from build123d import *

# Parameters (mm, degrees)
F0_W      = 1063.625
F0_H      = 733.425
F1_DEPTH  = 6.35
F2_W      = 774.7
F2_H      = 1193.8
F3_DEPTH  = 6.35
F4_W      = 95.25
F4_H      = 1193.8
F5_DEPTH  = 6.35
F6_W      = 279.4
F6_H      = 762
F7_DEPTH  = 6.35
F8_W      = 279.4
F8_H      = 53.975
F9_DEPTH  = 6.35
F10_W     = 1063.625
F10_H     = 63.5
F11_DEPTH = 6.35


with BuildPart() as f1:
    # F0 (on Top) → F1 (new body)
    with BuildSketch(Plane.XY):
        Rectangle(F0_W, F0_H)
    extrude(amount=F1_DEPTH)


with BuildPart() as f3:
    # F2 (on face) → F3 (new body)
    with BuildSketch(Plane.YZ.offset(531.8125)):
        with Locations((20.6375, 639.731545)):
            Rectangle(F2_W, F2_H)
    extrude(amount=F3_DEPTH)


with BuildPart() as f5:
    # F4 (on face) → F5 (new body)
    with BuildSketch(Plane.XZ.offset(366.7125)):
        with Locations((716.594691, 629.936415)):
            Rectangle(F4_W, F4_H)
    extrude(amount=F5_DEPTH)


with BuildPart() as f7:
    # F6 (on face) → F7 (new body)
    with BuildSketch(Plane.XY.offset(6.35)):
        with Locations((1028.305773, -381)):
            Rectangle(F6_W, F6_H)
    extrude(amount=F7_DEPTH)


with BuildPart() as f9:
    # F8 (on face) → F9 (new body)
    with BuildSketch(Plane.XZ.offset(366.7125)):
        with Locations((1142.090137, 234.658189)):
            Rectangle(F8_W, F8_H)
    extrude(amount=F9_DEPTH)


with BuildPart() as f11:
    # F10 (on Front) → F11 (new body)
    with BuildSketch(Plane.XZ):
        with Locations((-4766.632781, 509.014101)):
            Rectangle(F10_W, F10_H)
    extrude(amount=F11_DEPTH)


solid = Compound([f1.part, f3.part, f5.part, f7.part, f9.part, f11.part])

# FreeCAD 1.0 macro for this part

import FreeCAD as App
import Part
import Sketcher
Q = App.Units.Quantity

doc = App.newDocument("Part")
body = doc.addObject("PartDesign::Body", "Body")

# Sketch on XY plane
sketch1 = body.newObject("Sketcher::SketchObject", "Sketch")
sketch1.AttachmentSupport = (doc.getObject("XY_Plane"), [""])
sketch1.MapMode = "FlatFace"
sketch1.addGeometry([
    Part.LineSegment(App.Vector(-532, 367, 0), App.Vector(-532, -367, 0)),
    Part.LineSegment(App.Vector(-532, -367, 0), App.Vector(532, -367, 0)),
    Part.LineSegment(App.Vector(532, -367, 0), App.Vector(532, 367, 0)),
    Part.LineSegment(App.Vector(532, 367, 0), App.Vector(-532, 367, 0)),
], False)
sketch1.addConstraint([
    Sketcher.Constraint("Coincident", 0, 2, 1, 1),
    Sketcher.Constraint("Coincident", 1, 2, 2, 1),
    Sketcher.Constraint("Coincident", 2, 2, 3, 1),
    Sketcher.Constraint("Coincident", 3, 2, 0, 1),
    Sketcher.Constraint("Vertical", 0),
    Sketcher.Constraint("Horizontal", 1),
    Sketcher.Constraint("Vertical", 2),
    Sketcher.Constraint("Horizontal", 3),
    Sketcher.Constraint("Symmetric", 0, 2, 2, 2, -1, 1),
    Sketcher.Constraint("DistanceX", 1, 1, 1, 2, Q("41.875 in")),
    Sketcher.Constraint("DistanceY", 0, 2, 0, 1, Q("28.875 in")),
])
pad1 = body.newObject("PartDesign::Pad", "Pad")
pad1.Profile = sketch1
pad1.Length = Q("0.25 in")
body2 = doc.addObject("PartDesign::Body", "Body001")

# Sketch on YZ plane
sketch2 = body2.newObject("Sketcher::SketchObject", "Sketch001")
sketch2.AttachmentSupport = (doc.getObject("YZ_Plane001"), [""])
sketch2.MapMode = "FlatFace"
sketch2.AttachmentOffset = App.Placement(App.Vector(0, 0, 20.9375 * 25.4), App.Rotation())
sketch2.addGeometry([
    Part.LineSegment(App.Vector(-367, 1237, 0), App.Vector(-367, 43, 0)),
    Part.LineSegment(App.Vector(-367, 43, 0), App.Vector(408, 43, 0)),
    Part.LineSegment(App.Vector(408, 43, 0), App.Vector(408, 1237, 0)),
    Part.LineSegment(App.Vector(408, 1237, 0), App.Vector(-367, 1237, 0)),
], False)
sketch2.addConstraint([
    Sketcher.Constraint("Coincident", 0, 2, 1, 1),
    Sketcher.Constraint("Coincident", 1, 2, 2, 1),
    Sketcher.Constraint("Coincident", 2, 2, 3, 1),
    Sketcher.Constraint("Coincident", 3, 2, 0, 1),
    Sketcher.Constraint("Vertical", 0),
    Sketcher.Constraint("Horizontal", 1),
    Sketcher.Constraint("Vertical", 2),
    Sketcher.Constraint("Horizontal", 3),
    Sketcher.Constraint("DistanceY", 0, 2, 0, 1, Q("47 in")),
    Sketcher.Constraint("DistanceX", 1, 1, 1, 2, Q("30.5 in")),
    Sketcher.Constraint("DistanceX", 0, 2, -1, 1, Q("14.4375 in")),
    Sketcher.Constraint("DistanceY", -1, 1, 0, 2, 42.831545),
])
pad2 = body2.newObject("PartDesign::Pad", "Pad001")
pad2.Profile = sketch2
pad2.Length = Q("0.25 in")
body3 = doc.addObject("PartDesign::Body", "Body002")

# Sketch on XZ plane
sketch3 = body3.newObject("Sketcher::SketchObject", "Sketch002")
sketch3.AttachmentSupport = (doc.getObject("XZ_Plane002"), [""])
sketch3.MapMode = "FlatFace"
sketch3.AttachmentOffset = App.Placement(App.Vector(0, 0, 14.4375 * 25.4), App.Rotation())
sketch3.addGeometry([
    Part.LineSegment(App.Vector(669, 1227, 0), App.Vector(669, 33, 0)),
    Part.LineSegment(App.Vector(669, 33, 0), App.Vector(764, 33, 0)),
    Part.LineSegment(App.Vector(764, 33, 0), App.Vector(764, 1227, 0)),
    Part.LineSegment(App.Vector(764, 1227, 0), App.Vector(669, 1227, 0)),
], False)
sketch3.addConstraint([
    Sketcher.Constraint("Coincident", 0, 2, 1, 1),
    Sketcher.Constraint("Coincident", 1, 2, 2, 1),
    Sketcher.Constraint("Coincident", 2, 2, 3, 1),
    Sketcher.Constraint("Coincident", 3, 2, 0, 1),
    Sketcher.Constraint("Vertical", 0),
    Sketcher.Constraint("Horizontal", 1),
    Sketcher.Constraint("Vertical", 2),
    Sketcher.Constraint("Horizontal", 3),
    Sketcher.Constraint("DistanceY", 0, 2, 0, 1, Q("47 in")),
    Sketcher.Constraint("DistanceX", 1, 1, 1, 2, Q("3.75 in")),
    Sketcher.Constraint("DistanceX", -1, 1, 0, 2, 668.969691),
    Sketcher.Constraint("DistanceY", -1, 1, 0, 2, 33.036415),
])
pad3 = body3.newObject("PartDesign::Pad", "Pad002")
pad3.Profile = sketch3
pad3.Length = Q("0.25 in")
body4 = doc.addObject("PartDesign::Body", "Body003")

# Sketch on XY plane
sketch4 = body4.newObject("Sketcher::SketchObject", "Sketch003")
sketch4.AttachmentSupport = (doc.getObject("XY_Plane003"), [""])
sketch4.MapMode = "FlatFace"
sketch4.AttachmentOffset = App.Placement(App.Vector(0, 0, 0.25 * 25.4), App.Rotation())
sketch4.addGeometry([
    Part.LineSegment(App.Vector(889, 0, 0), App.Vector(889, -762, 0)),
    Part.LineSegment(App.Vector(889, -762, 0), App.Vector(1168, -762, 0)),
    Part.LineSegment(App.Vector(1168, -762, 0), App.Vector(1168, 0, 0)),
    Part.LineSegment(App.Vector(1168, 0, 0), App.Vector(889, 0, 0)),
], False)
sketch4.addConstraint([
    Sketcher.Constraint("Coincident", 0, 2, 1, 1),
    Sketcher.Constraint("Coincident", 1, 2, 2, 1),
    Sketcher.Constraint("Coincident", 2, 2, 3, 1),
    Sketcher.Constraint("Coincident", 3, 2, 0, 1),
    Sketcher.Constraint("Vertical", 0),
    Sketcher.Constraint("Horizontal", 1),
    Sketcher.Constraint("Vertical", 2),
    Sketcher.Constraint("Horizontal", 3),
    Sketcher.Constraint("PointOnObject", 2, 2, -1),
    Sketcher.Constraint("DistanceX", 1, 1, 1, 2, Q("11 in")),
    Sketcher.Constraint("DistanceY", 0, 2, 0, 1, Q("30 in")),
    Sketcher.Constraint("DistanceX", -1, 1, 0, 2, 888.605773),
])
pad4 = body4.newObject("PartDesign::Pad", "Pad003")
pad4.Profile = sketch4
pad4.Length = Q("0.25 in")
body5 = doc.addObject("PartDesign::Body", "Body004")

# Sketch on XZ plane
sketch5 = body5.newObject("Sketcher::SketchObject", "Sketch004")
sketch5.AttachmentSupport = (doc.getObject("XZ_Plane004"), [""])
sketch5.MapMode = "FlatFace"
sketch5.AttachmentOffset = App.Placement(App.Vector(0, 0, 14.4375 * 25.4), App.Rotation())
sketch5.addGeometry([
    Part.LineSegment(App.Vector(1002, 262, 0), App.Vector(1002, 208, 0)),
    Part.LineSegment(App.Vector(1002, 208, 0), App.Vector(1282, 208, 0)),
    Part.LineSegment(App.Vector(1282, 208, 0), App.Vector(1282, 262, 0)),
    Part.LineSegment(App.Vector(1282, 262, 0), App.Vector(1002, 262, 0)),
], False)
sketch5.addConstraint([
    Sketcher.Constraint("Coincident", 0, 2, 1, 1),
    Sketcher.Constraint("Coincident", 1, 2, 2, 1),
    Sketcher.Constraint("Coincident", 2, 2, 3, 1),
    Sketcher.Constraint("Coincident", 3, 2, 0, 1),
    Sketcher.Constraint("Vertical", 0),
    Sketcher.Constraint("Horizontal", 1),
    Sketcher.Constraint("Vertical", 2),
    Sketcher.Constraint("Horizontal", 3),
    Sketcher.Constraint("DistanceX", 1, 1, 1, 2, Q("11 in")),
    Sketcher.Constraint("DistanceY", 0, 2, 0, 1, Q("2.125 in")),
    Sketcher.Constraint("DistanceY", -1, 1, 0, 2, 207.670689),
    Sketcher.Constraint("DistanceX", -1, 1, 0, 2, 1002.390137),
])
pad5 = body5.newObject("PartDesign::Pad", "Pad004")
pad5.Profile = sketch5
pad5.Length = Q("0.25 in")
body6 = doc.addObject("PartDesign::Body", "Body005")

# Sketch on XZ plane
sketch6 = body6.newObject("Sketcher::SketchObject", "Sketch005")
sketch6.AttachmentSupport = (doc.getObject("XZ_Plane005"), [""])
sketch6.MapMode = "FlatFace"
sketch6.addGeometry([
    Part.LineSegment(App.Vector(-5298, 541, 0), App.Vector(-5298, 477, 0)),
    Part.LineSegment(App.Vector(-5298, 477, 0), App.Vector(-4235, 477, 0)),
    Part.LineSegment(App.Vector(-4235, 477, 0), App.Vector(-4235, 541, 0)),
    Part.LineSegment(App.Vector(-4235, 541, 0), App.Vector(-5298, 541, 0)),
], False)
sketch6.addConstraint([
    Sketcher.Constraint("Coincident", 0, 2, 1, 1),
    Sketcher.Constraint("Coincident", 1, 2, 2, 1),
    Sketcher.Constraint("Coincident", 2, 2, 3, 1),
    Sketcher.Constraint("Coincident", 3, 2, 0, 1),
    Sketcher.Constraint("Vertical", 0),
    Sketcher.Constraint("Horizontal", 1),
    Sketcher.Constraint("Vertical", 2),
    Sketcher.Constraint("Horizontal", 3),
    Sketcher.Constraint("DistanceY", 0, 2, 0, 1, Q("2.5 in")),
    Sketcher.Constraint("DistanceX", 1, 1, 1, 2, Q("41.875 in")),
    Sketcher.Constraint("DistanceY", -1, 1, 0, 2, 477.264101),
    Sketcher.Constraint("DistanceX", 0, 2, -1, 1, 5298.445281),
])
pad6 = body6.newObject("PartDesign::Pad", "Pad005")
pad6.Profile = sketch6
pad6.Length = Q("0.25 in")

doc.recompute()
